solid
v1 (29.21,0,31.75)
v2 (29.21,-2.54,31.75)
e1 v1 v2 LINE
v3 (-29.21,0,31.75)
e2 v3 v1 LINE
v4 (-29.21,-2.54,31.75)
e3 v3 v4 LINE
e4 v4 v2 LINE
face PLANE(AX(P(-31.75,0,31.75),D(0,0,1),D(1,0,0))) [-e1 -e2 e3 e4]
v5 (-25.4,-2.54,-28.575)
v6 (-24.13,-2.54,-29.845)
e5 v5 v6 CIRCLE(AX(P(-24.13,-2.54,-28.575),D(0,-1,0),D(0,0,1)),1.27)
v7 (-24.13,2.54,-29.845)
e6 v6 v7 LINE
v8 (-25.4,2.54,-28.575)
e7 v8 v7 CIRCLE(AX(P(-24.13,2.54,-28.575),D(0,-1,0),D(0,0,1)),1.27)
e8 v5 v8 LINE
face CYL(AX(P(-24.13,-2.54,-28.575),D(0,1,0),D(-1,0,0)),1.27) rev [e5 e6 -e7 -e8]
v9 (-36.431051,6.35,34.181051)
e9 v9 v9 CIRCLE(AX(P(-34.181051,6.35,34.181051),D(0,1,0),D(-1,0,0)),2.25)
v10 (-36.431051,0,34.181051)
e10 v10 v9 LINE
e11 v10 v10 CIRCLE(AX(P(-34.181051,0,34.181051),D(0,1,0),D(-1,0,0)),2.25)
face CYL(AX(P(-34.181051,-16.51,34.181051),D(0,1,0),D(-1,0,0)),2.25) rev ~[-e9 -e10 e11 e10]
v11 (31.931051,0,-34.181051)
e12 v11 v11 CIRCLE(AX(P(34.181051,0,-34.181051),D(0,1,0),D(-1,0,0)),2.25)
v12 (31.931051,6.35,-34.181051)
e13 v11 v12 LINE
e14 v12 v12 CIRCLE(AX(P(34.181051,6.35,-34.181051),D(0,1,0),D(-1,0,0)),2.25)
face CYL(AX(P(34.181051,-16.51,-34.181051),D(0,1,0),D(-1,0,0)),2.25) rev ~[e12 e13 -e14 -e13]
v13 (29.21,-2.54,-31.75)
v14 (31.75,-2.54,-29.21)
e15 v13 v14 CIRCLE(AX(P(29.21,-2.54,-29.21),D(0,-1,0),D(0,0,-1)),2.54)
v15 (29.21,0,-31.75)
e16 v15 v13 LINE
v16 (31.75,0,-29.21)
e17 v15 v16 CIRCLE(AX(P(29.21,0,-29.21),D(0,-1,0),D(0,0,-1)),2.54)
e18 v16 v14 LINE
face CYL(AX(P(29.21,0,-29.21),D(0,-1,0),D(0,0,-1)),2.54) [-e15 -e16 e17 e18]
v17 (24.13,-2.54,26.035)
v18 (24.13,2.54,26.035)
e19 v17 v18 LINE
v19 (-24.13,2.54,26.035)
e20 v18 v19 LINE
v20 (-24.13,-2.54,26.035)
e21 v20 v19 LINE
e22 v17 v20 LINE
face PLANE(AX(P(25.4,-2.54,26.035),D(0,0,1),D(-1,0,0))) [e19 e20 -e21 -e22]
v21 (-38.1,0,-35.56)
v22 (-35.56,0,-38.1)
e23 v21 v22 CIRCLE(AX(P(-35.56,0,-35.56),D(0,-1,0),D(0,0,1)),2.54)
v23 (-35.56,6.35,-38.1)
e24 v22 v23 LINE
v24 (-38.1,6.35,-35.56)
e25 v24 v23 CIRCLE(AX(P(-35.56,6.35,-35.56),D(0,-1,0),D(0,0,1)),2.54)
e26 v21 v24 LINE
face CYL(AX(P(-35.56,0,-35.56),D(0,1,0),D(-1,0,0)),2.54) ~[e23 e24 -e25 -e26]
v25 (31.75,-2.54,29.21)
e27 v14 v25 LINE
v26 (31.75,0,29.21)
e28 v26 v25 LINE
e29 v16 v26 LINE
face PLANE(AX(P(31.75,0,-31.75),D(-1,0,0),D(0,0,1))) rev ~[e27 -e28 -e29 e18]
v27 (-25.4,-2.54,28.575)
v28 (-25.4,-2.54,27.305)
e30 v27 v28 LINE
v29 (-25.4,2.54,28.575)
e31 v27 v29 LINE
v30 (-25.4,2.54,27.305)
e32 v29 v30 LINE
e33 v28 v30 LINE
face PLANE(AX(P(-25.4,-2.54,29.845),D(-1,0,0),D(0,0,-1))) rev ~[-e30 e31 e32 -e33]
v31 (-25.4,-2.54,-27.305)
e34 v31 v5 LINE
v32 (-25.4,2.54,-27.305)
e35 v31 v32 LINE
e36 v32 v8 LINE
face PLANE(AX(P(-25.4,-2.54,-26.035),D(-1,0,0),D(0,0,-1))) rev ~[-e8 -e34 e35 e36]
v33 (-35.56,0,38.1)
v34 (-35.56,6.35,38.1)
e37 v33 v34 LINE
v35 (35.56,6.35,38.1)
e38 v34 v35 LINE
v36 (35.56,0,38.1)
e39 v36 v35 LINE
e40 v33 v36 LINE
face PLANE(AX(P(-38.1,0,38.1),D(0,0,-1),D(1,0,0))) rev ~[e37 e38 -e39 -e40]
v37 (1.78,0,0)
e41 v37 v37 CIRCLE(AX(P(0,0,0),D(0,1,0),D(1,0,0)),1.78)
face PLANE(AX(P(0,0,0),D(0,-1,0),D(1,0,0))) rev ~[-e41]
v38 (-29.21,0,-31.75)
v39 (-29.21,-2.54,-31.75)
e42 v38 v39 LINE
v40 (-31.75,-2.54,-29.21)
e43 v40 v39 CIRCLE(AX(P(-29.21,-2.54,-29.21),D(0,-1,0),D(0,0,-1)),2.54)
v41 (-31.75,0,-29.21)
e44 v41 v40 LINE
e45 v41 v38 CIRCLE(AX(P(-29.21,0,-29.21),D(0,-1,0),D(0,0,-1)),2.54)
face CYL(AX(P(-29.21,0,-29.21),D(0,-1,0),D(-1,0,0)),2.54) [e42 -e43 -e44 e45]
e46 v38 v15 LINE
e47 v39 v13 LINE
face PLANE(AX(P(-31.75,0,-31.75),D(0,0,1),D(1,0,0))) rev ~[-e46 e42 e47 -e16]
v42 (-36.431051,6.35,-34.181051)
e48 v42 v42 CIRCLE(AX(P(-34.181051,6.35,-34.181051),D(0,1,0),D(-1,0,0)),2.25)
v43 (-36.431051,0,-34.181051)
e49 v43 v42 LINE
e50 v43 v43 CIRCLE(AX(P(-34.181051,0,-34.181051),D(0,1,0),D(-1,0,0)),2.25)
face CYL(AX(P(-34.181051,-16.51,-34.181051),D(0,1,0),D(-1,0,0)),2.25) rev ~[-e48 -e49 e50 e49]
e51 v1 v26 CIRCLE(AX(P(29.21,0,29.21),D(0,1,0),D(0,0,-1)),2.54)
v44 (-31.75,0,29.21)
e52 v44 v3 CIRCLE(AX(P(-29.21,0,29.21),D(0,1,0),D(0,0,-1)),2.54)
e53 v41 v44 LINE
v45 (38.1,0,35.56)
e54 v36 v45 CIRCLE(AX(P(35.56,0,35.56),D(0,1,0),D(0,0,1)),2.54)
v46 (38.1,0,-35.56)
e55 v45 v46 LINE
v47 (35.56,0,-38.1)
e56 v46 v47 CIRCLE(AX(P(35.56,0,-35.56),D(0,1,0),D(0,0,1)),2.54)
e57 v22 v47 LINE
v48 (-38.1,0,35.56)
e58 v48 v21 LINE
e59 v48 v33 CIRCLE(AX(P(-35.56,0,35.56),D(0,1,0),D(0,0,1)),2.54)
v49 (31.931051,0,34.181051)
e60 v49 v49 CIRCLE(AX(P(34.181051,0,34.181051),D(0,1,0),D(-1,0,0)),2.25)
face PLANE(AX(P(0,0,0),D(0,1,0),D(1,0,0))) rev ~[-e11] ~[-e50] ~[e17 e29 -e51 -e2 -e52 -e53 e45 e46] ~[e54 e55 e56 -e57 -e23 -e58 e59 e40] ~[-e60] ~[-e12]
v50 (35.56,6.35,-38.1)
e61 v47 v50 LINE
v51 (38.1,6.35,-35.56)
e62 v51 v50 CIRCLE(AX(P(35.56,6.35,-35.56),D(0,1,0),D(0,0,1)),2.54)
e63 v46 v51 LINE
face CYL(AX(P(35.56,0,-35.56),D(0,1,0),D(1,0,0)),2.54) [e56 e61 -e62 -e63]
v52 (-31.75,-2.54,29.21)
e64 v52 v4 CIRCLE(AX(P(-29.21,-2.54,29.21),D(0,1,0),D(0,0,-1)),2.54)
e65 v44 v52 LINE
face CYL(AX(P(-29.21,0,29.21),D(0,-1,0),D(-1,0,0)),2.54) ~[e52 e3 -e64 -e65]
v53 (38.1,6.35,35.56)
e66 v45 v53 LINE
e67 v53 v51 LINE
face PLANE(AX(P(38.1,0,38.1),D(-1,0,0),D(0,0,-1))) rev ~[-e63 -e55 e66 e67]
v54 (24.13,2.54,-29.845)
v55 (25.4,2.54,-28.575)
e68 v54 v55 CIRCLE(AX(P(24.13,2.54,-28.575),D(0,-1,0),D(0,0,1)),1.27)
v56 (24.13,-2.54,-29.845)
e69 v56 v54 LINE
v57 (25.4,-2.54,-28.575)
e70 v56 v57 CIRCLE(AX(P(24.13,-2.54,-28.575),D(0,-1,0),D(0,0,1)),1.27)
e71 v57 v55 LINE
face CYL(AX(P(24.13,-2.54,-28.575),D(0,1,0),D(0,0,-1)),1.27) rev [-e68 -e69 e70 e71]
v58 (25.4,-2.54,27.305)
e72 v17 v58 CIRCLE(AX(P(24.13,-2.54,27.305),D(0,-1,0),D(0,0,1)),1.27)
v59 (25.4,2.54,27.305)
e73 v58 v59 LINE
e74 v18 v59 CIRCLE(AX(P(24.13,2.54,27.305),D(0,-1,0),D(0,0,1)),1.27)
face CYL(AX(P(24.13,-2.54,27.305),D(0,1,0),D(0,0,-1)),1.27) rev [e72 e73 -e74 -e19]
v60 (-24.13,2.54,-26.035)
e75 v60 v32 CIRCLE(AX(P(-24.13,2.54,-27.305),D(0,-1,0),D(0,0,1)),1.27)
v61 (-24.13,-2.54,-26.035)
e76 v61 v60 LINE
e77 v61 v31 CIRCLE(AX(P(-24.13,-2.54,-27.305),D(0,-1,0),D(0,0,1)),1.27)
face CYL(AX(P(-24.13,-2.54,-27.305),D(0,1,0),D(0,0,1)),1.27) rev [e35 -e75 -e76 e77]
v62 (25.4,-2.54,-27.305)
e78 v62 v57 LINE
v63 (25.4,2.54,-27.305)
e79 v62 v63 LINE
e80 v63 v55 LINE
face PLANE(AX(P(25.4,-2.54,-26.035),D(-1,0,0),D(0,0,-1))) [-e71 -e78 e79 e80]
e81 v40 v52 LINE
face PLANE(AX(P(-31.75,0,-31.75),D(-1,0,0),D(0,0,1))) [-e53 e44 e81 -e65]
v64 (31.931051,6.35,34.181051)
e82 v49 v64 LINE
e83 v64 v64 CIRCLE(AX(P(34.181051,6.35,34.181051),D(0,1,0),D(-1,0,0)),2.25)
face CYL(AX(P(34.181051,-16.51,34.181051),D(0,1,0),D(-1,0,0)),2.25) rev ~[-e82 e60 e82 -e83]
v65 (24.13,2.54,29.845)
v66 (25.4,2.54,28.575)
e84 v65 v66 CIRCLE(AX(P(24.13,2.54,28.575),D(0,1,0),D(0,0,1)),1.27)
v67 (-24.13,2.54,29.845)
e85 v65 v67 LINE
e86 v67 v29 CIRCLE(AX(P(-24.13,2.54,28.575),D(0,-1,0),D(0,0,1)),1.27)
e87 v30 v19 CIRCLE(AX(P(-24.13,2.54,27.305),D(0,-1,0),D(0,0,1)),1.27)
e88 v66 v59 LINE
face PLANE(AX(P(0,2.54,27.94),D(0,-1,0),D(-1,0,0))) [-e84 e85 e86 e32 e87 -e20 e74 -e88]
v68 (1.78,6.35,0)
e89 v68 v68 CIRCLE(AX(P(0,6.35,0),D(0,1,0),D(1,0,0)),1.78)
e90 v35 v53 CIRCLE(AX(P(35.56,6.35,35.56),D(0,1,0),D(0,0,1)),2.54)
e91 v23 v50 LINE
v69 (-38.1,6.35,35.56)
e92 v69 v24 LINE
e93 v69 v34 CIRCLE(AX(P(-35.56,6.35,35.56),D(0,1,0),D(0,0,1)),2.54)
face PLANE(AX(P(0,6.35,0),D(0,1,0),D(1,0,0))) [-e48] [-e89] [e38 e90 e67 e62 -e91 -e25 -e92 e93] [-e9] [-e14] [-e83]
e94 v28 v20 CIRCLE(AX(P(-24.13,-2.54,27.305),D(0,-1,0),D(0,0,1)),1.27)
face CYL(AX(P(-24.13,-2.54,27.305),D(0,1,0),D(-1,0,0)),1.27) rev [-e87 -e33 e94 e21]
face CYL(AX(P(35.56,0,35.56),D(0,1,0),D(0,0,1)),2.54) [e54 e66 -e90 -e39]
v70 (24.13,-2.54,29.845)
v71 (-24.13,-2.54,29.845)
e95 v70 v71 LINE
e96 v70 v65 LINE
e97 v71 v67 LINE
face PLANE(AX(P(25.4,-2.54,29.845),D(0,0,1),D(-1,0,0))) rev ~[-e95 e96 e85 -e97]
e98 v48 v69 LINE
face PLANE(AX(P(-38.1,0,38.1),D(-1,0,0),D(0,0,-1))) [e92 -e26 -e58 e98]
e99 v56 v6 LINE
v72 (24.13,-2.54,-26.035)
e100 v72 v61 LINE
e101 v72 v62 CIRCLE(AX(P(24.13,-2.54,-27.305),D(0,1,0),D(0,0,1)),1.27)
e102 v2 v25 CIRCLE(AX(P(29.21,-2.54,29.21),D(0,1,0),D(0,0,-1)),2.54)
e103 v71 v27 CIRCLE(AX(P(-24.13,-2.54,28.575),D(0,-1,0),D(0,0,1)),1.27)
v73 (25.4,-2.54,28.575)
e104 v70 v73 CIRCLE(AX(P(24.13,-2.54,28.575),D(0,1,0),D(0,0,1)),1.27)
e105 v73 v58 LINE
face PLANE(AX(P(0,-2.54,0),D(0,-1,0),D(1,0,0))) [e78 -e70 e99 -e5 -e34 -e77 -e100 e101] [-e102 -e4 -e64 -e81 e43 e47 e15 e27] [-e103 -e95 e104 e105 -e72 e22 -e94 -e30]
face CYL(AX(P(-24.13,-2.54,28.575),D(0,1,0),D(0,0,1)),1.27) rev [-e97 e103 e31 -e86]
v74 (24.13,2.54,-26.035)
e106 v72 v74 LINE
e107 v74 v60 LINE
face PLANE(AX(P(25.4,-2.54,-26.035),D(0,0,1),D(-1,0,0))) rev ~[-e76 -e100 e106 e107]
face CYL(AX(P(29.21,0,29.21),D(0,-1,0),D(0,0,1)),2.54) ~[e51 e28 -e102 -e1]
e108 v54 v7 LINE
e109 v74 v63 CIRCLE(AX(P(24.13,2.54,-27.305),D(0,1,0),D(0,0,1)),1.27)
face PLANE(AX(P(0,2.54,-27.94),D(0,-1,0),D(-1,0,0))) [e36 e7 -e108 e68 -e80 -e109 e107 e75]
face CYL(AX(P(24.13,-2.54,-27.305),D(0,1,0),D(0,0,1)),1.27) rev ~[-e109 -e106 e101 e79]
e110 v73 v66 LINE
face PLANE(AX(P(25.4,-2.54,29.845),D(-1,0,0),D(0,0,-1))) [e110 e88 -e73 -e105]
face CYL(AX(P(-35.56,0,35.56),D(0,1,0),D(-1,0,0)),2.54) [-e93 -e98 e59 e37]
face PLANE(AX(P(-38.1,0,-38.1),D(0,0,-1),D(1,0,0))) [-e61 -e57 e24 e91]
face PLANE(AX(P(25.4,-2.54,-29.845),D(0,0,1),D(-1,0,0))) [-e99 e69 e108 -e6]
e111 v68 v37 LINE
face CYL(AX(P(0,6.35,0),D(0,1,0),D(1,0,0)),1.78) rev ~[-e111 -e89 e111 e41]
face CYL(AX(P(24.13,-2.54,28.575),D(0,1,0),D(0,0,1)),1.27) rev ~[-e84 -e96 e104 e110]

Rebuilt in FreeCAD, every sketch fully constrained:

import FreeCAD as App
import Part
import Sketcher
from FreeCAD import Vector
Q = App.Units.Quantity


def edges_at(feature, points):
    """Names of the edges that pass closest to the given points."""
    edges = feature.Shape.Edges
    near = lambda p: min(range(len(edges)), key=lambda i: edges[i].distToShape(Part.Vertex(*p))[0])
    return sorted({f"Edge{near(p) + 1}" for p in points})

doc = App.newDocument("Part")
params = doc.addObject("Spreadsheet::Sheet", "Params")
for row, (alias, value) in enumerate([
    ("sketch1_width", "3 in"),
    ("pad1_length", "0.25 in"),
    ("fillet_radius", "0.1 in"),
    ("sketch3_width", "2.5 in"),
    ("pad2_length", "0.1 in"),
    ("fillet2_radius", "0.1 in"),
    ("hole_diameter", "4.5 mm"),
    ("hole_depth", "0.55 in"),
    ("sketch5_width", "2 in"),
    ("sketch5_height", "0.15 in"),
    ("pocket2_length", "0.2 in"),
    ("fillet3_radius", "0.05 in"),
], start=1):
    params.set(f"A{row}", alias)
    params.set(f"B{row}", "=" + value)
    params.setAlias(f"B{row}", alias)

body = doc.addObject("PartDesign::Body", "Body")

# Sketch on XZ plane
sketch1 = body.newObject("Sketcher::SketchObject", "Sketch")
sketch1.AttachmentSupport = (doc.getObject("XZ_Plane"), [""])
sketch1.MapMode = "FlatFace"
sketch1.addGeometry([
    Part.LineSegment(Vector(-38, -38, 0), Vector(-38, 38, 0)),
    Part.LineSegment(Vector(-38, 38, 0), Vector(38, 38, 0)),
    Part.LineSegment(Vector(38, 38, 0), Vector(38, -38, 0)),
    Part.LineSegment(Vector(38, -38, 0), Vector(-38, -38, 0)),
], False)
sketch1.addConstraint([
    Sketcher.Constraint("Coincident", 0, 2, 1, 1),
    Sketcher.Constraint("Coincident", 1, 2, 2, 1),
    Sketcher.Constraint("Coincident", 2, 2, 3, 1),
    Sketcher.Constraint("Coincident", 3, 2, 0, 1),
    Sketcher.Constraint("Vertical", 0),
    Sketcher.Constraint("Horizontal", 1),
    Sketcher.Constraint("Vertical", 2),
    Sketcher.Constraint("Horizontal", 3),
    Sketcher.Constraint("Symmetric", 0, 2, 2, 2, -1, 1),
    Sketcher.Constraint("Equal", 3, 0),
    Sketcher.Constraint("DistanceX", 1, 1, 1, 2, Q("3 in")),
])
sketch1.setExpression("Constraints[10]", "Params.sketch1_width")
pad1 = body.newObject("PartDesign::Pad", "Pad")
pad1.Profile = sketch1
pad1.setExpression("Length", "Params.pad1_length")
pad1.Reversed = True
doc.recompute()

fillet = body.newObject("PartDesign::Fillet", "Fillet")
fillet.Base = (pad1, edges_at(pad1, [
    (38.1, 3.175, 38.1),
    (-38.1, 3.175, 38.1),
    (-38.1, 3.175, -38.1),
    (38.1, 3.175, -38.1),
]))
fillet.setExpression("Radius", "Params.fillet_radius")

# Sketch on XZ plane
sketch2 = body.newObject("Sketcher::SketchObject", "Sketch001")
sketch2.AttachmentSupport = (doc.getObject("XZ_Plane"), [""])
sketch2.MapMode = "FlatFace"
sketch2.AttachmentOffset = App.Placement(Vector(0, 0, -0.25 * 25.4), App.Rotation())
sketch2.addGeometry(Part.Circle(Vector(0, 0, 0), Vector(0, 0, 1), 1.8), False)
sketch2.addConstraint([
    Sketcher.Constraint("Coincident", 0, 3, -1, 1),
    Sketcher.Constraint("Diameter", 0, 3.56),
])
pocket1 = body.newObject("PartDesign::Pocket", "Pocket")
pocket1.Profile = sketch2
pocket1.Type = "ThroughAll"
pocket1.Reversed = True

# Sketch on XZ plane
sketch3 = body.newObject("Sketcher::SketchObject", "Sketch002")
sketch3.AttachmentSupport = (doc.getObject("XZ_Plane"), [""])
sketch3.MapMode = "FlatFace"
sketch3.addGeometry([
    Part.LineSegment(Vector(-32, 32, 0), Vector(-32, -32, 0)),
    Part.LineSegment(Vector(-32, -32, 0), Vector(32, -32, 0)),
    Part.LineSegment(Vector(32, -32, 0), Vector(32, 32, 0)),
    Part.LineSegment(Vector(32, 32, 0), Vector(-32, 32, 0)),
], False)
sketch3.addConstraint([
    Sketcher.Constraint("Coincident", 0, 2, 1, 1),
    Sketcher.Constraint("Coincident", 1, 2, 2, 1),
    Sketcher.Constraint("Coincident", 2, 2, 3, 1),
    Sketcher.Constraint("Coincident", 3, 2, 0, 1),
    Sketcher.Constraint("Vertical", 0),
    Sketcher.Constraint("Horizontal", 1),
    Sketcher.Constraint("Vertical", 2),
    Sketcher.Constraint("Horizontal", 3),
    Sketcher.Constraint("Symmetric", 0, 2, 2, 2, -1, 1),
    Sketcher.Constraint("Equal", 3, 0),
    Sketcher.Constraint("DistanceX", 1, 1, 1, 2, Q("2.5 in")),
])
sketch3.setExpression("Constraints[10]", "Params.sketch3_width")
pad2 = body.newObject("PartDesign::Pad", "Pad001")
pad2.Profile = sketch3
pad2.setExpression("Length", "Params.pad2_length")
doc.recompute()

fillet2 = body.newObject("PartDesign::Fillet", "Fillet001")
fillet2.Base = (pad2, edges_at(pad2, [
    (-31.75, -1.27, 31.75),
    (-31.75, -1.27, -31.75),
    (31.75, -1.27, -31.75),
    (31.75, -1.27, 31.75),
]))
fillet2.setExpression("Radius", "Params.fillet2_radius")

# Sketch on XZ plane
sketch4 = body.newObject("Sketcher::SketchObject", "Sketch003")
sketch4.AttachmentSupport = (doc.getObject("XZ_Plane"), [""])
sketch4.MapMode = "FlatFace"
sketch4.AttachmentOffset = App.Placement(Vector(0, 0, 0.1 * 25.4), App.Rotation())
sketch4.addGeometry([
    Part.Circle(Vector(-34.2, 34.2, 0), Vector(0, 0, 1), 2.2),
    Part.Circle(Vector(-34.2, -34.2, 0), Vector(0, 0, 1), 2.2),
    Part.Circle(Vector(34.2, -34.2, 0), Vector(0, 0, 1), 2.2),
    Part.Circle(Vector(34.2, 34.2, 0), Vector(0, 0, 1), 2.2),
], False)
sketch4.addConstraint([
    Sketcher.Constraint("Equal", 0, 1),
    Sketcher.Constraint("Equal", 1, 2),
    Sketcher.Constraint("Equal", 2, 3),
    Sketcher.Constraint("Symmetric", 0, 3, 2, 3, -1, 1),
    Sketcher.Constraint("Symmetric", 1, 3, 3, 3, -1, 1),
    Sketcher.Constraint("Symmetric", 1, 3, 2, 3, -2),
    Sketcher.Constraint("Diameter", 0, 4.5),
    Sketcher.Constraint("DistanceX", 0, 3, -1, 1, 34.181051),
    Sketcher.Constraint("DistanceY", -1, 1, 0, 3, 34.181051),
])
doc.recompute()
hole = body.newObject("PartDesign::Hole", "Hole")
hole.Profile = sketch4
hole.ThreadType = "None"
hole.setExpression("Diameter", "Params.hole_diameter")
hole.DepthType = "Dimension"
hole.setExpression("Depth", "Params.hole_depth")
hole.DrillPoint = "Angled"
hole.DrillPointAngle = 118

# Sketch on XZ plane
sketch5 = body.newObject("Sketcher::SketchObject", "Sketch004")
sketch5.AttachmentSupport = (doc.getObject("XZ_Plane"), [""])
sketch5.MapMode = "FlatFace"
sketch5.AttachmentOffset = App.Placement(Vector(0, 0, 0.1 * 25.4), App.Rotation())
sketch5.addGeometry([
    Part.LineSegment(Vector(25.4, -29.8, 0), Vector(25.4, -26, 0)),  # 0
    Part.LineSegment(Vector(25.4, -26, 0), Vector(-25.4, -26, 0)),  # 1
    Part.LineSegment(Vector(-25.4, -26, 0), Vector(-25.4, -29.8, 0)),  # 2
    Part.LineSegment(Vector(-25.4, -29.8, 0), Vector(25.4, -29.8, 0)),  # 3
    Part.LineSegment(Vector(25.4, 26, 0), Vector(25.4, 29.8, 0)),  # 4
    Part.LineSegment(Vector(25.4, 29.8, 0), Vector(-25.4, 29.8, 0)),  # 5
    Part.LineSegment(Vector(-25.4, 29.8, 0), Vector(-25.4, 26, 0)),  # 6
    Part.LineSegment(Vector(-25.4, 26, 0), Vector(25.4, 26, 0)),  # 7
], False)
sketch5.addConstraint([
    Sketcher.Constraint("Coincident", 0, 2, 1, 1),
    Sketcher.Constraint("Coincident", 1, 2, 2, 1),
    Sketcher.Constraint("Coincident", 2, 2, 3, 1),
    Sketcher.Constraint("Coincident", 3, 2, 0, 1),
    Sketcher.Constraint("Coincident", 4, 2, 5, 1),
    Sketcher.Constraint("Coincident", 5, 2, 6, 1),
    Sketcher.Constraint("Coincident", 6, 2, 7, 1),
    Sketcher.Constraint("Coincident", 7, 2, 4, 1),
    Sketcher.Constraint("Vertical", 0),
    Sketcher.Constraint("Horizontal", 1),
    Sketcher.Constraint("Vertical", 2),
    Sketcher.Constraint("Horizontal", 3),
    Sketcher.Constraint("Vertical", 4),
    Sketcher.Constraint("Horizontal", 5),
    Sketcher.Constraint("Vertical", 6),
    Sketcher.Constraint("Horizontal", 7),
    Sketcher.Constraint("Symmetric", 2, 2, 4, 2, -1, 1),
    Sketcher.Constraint("Symmetric", 0, 2, 6, 2, -1, 1),
    Sketcher.Constraint("Vertical", 3, 2, 4, 2),
    Sketcher.Constraint("DistanceX", 1, 2, 1, 1, Q("2 in")),
    Sketcher.Constraint("DistanceY", 0, 1, 0, 2, Q("0.15 in")),
    Sketcher.Constraint("DistanceY", 0, 2, 4, 2, Q("2.2 in")),
])
sketch5.setExpression("Constraints[19]", "Params.sketch5_width")
sketch5.setExpression("Constraints[20]", "Params.sketch5_height")
pocket2 = body.newObject("PartDesign::Pocket", "Pocket001")
pocket2.Profile = sketch5
pocket2.setExpression("Length", "Params.pocket2_length")
doc.recompute()

fillet3 = body.newObject("PartDesign::Fillet", "Fillet002")
fillet3.Base = (pocket2, edges_at(pocket2, [
    (25.4, 0, -26.035),
    (25.4, 0, -29.845),
    (-25.4, 0, -29.845),
    (-25.4, 0, -26.035),
    (25.4, 0, 29.845),
    (25.4, 0, 26.035),
    (-25.4, 0, 26.035),
    (-25.4, 0, 29.845),
]))
fillet3.setExpression("Radius", "Params.fillet3_radius")

doc.recompute()
